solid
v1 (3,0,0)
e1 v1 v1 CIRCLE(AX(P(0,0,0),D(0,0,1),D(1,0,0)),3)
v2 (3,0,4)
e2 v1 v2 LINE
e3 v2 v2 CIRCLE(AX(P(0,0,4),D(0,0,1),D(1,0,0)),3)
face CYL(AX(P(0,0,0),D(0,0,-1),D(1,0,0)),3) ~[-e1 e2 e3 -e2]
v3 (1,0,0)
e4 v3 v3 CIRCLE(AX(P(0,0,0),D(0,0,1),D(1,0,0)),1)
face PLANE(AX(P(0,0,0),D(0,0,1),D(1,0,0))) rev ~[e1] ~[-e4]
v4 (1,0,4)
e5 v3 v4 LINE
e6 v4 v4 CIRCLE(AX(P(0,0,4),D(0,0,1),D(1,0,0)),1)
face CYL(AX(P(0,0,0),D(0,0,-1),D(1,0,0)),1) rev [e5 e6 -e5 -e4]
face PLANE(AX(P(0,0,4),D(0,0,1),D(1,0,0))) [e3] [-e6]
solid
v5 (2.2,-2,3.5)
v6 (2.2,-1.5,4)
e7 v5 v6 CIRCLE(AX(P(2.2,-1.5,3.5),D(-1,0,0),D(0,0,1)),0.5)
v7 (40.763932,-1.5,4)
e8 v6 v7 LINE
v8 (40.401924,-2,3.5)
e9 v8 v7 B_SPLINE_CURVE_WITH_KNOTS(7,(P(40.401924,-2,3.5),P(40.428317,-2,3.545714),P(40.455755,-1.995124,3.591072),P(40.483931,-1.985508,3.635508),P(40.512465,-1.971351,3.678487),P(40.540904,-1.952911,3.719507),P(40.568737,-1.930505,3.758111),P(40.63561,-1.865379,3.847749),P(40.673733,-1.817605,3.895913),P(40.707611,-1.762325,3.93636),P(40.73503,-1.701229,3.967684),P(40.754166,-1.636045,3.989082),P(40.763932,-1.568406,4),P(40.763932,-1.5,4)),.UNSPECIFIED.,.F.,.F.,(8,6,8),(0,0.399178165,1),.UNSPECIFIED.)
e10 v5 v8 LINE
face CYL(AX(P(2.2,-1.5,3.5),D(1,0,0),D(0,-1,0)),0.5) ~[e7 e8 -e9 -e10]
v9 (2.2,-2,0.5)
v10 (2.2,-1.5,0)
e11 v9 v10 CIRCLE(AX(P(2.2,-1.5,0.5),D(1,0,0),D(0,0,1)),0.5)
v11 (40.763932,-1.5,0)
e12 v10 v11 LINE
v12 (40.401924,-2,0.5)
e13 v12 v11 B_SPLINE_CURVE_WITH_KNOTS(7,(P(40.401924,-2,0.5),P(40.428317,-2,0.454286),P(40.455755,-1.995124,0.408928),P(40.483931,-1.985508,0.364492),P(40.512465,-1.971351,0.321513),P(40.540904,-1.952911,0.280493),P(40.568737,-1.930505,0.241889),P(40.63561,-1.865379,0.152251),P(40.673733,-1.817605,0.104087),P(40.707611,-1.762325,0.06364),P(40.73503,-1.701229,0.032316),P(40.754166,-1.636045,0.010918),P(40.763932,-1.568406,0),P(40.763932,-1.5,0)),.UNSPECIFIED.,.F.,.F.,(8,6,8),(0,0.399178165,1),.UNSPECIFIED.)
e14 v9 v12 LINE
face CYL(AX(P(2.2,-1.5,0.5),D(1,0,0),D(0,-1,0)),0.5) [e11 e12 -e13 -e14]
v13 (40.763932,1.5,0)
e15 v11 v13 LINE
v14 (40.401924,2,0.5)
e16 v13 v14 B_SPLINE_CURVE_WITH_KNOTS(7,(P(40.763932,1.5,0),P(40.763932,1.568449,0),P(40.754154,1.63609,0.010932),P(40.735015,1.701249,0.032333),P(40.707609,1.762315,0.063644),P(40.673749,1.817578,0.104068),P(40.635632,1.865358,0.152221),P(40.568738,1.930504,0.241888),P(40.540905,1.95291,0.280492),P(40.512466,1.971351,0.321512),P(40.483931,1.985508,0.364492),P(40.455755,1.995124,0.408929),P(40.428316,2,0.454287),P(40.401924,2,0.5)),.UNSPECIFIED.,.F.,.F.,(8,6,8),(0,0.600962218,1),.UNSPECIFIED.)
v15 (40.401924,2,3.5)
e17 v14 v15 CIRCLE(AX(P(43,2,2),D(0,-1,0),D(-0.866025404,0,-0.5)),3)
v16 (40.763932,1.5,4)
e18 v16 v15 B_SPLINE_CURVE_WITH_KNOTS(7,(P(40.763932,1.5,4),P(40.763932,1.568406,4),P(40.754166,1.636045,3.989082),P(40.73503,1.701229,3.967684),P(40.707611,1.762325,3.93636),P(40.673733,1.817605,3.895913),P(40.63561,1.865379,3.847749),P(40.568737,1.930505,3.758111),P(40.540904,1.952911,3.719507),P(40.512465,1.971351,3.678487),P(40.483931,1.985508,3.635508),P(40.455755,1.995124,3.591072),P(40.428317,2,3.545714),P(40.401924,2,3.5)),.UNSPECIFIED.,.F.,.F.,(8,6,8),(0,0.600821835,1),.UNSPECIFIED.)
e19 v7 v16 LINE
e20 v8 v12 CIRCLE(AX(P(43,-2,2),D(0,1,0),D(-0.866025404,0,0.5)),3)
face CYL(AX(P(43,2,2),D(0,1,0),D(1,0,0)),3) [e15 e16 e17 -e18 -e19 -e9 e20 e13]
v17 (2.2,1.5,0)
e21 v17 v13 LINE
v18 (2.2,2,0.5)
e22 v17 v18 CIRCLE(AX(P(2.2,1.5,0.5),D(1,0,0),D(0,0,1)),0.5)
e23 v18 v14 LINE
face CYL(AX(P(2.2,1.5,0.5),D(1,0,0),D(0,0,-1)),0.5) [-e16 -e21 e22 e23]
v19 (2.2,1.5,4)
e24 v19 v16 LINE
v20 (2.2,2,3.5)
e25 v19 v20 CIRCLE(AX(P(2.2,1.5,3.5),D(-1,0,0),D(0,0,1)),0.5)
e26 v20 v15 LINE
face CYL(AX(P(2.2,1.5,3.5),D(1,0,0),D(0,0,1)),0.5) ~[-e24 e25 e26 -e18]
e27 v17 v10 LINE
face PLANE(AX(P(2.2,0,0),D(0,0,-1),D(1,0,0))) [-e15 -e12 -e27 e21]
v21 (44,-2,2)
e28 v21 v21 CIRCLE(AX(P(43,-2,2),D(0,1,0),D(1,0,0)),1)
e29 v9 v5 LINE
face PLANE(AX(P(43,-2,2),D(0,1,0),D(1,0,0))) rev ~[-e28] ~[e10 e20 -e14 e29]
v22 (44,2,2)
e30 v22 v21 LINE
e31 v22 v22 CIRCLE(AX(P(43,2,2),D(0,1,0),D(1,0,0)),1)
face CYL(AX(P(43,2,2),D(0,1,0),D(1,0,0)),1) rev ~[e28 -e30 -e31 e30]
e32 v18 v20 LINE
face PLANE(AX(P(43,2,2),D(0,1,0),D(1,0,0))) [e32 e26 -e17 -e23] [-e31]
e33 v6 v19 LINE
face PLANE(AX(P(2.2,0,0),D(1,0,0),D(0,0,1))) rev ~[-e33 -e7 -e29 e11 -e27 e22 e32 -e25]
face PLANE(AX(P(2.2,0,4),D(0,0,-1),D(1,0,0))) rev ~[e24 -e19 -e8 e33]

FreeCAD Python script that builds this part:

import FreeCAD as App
import Part
import Sketcher
from FreeCAD import Vector


def edges_at(feature, points):
    """Names of the edges that pass closest to the given points."""
    edges = feature.Shape.Edges
    near = lambda p: min(range(len(edges)), key=lambda i: edges[i].distToShape(Part.Vertex(*p))[0])
    return sorted({f"Edge{near(p) + 1}" for p in points})


def add_polygon(sketch, points):
    """Adds a closed chain of lines whose ends are joined by coincident constraints."""
    first, n = sketch.GeometryCount, len(points)
    for a, b in zip(points, points[1:] + points[:1]):
        sketch.addGeometry(Part.LineSegment(App.Vector(*a, 0), App.Vector(*b, 0)), False)
    for i in range(n):
        sketch.addConstraint(Sketcher.Constraint("Coincident", first + i, 2, first + (i + 1) % n, 1))

doc = App.newDocument("Part")
body = doc.addObject("PartDesign::Body", "Body")

sketch1 = body.newObject("Sketcher::SketchObject", "Sketch")
sketch1.AttachmentSupport = (doc.getObject("XY_Plane"), [""])
sketch1.MapMode = "FlatFace"
sketch1.addGeometry([
    Part.Circle(Vector(0, 0, 0), Vector(0, 0, 1), 3),
    Part.Circle(Vector(0, 0, 0), Vector(0, 0, 1), 1),
], False)
sketch1.addConstraint([
    Sketcher.Constraint("Coincident", 0, 3, -1, 1),
    Sketcher.Constraint("Coincident", 1, 3, -1, 1),
    Sketcher.Constraint("Diameter", 0, 6.0),
    Sketcher.Constraint("Diameter", 1, 2.0),
])
pad1 = body.newObject("PartDesign::Pad", "Pad")
pad1.Profile = sketch1
pad1.Length = 4
body2 = doc.addObject("PartDesign::Body", "Body001")

sketch2 = body2.newObject("Sketcher::SketchObject", "Sketch001")
sketch2.AttachmentSupport = (doc.getObject("XZ_Plane001"), [""])
sketch2.MapMode = "FlatFace"
add_polygon(sketch2, [(2.2, 4), (2.2, 0), (40.8, 0), (40.8, 4)])
sketch2.addConstraint([
    Sketcher.Constraint("Vertical", 0),
    Sketcher.Constraint("Horizontal", 1),
    Sketcher.Constraint("Vertical", 2),
    Sketcher.Constraint("Horizontal", 3),
    Sketcher.Constraint("PointOnObject", 0, 2, -1),
    Sketcher.Constraint("DistanceY", 0, 2, 0, 1, 4.0),
    Sketcher.Constraint("DistanceX", 1, 1, 1, 2, 38.6),
    Sketcher.Constraint("DistanceX", -1, 1, 0, 2, 2.2),
])
pad2 = body2.newObject("PartDesign::Pad", "Pad001")
pad2.Profile = sketch2
pad2.Length = 4
pad2.Midplane = True
doc.recompute()

fillet = body2.newObject("PartDesign::Fillet", "Fillet")
fillet.Base = (pad2, edges_at(pad2, [(21.5, -2, 4)]))
fillet.Radius = 0.5
doc.recompute()

fillet2 = body2.newObject("PartDesign::Fillet", "Fillet001")
fillet2.Base = (fillet, edges_at(fillet, [(21.5, 2, 4)]))
fillet2.Radius = 0.5
doc.recompute()

fillet3 = body2.newObject("PartDesign::Fillet", "Fillet002")
fillet3.Base = (fillet2, edges_at(fillet2, [(21.5, -2, 0)]))
fillet3.Radius = 0.5
doc.recompute()

fillet4 = body2.newObject("PartDesign::Fillet", "Fillet003")
fillet4.Base = (fillet3, edges_at(fillet3, [(21.5, 2, 0)]))
fillet4.Radius = 0.5

sketch3 = body2.newObject("Sketcher::SketchObject", "Sketch002")
sketch3.AttachmentSupport = (doc.getObject("XZ_Plane001"), [""])
sketch3.MapMode = "FlatFace"
sketch3.AttachmentOffset = App.Placement(Vector(0, 0, -2), App.Rotation())
sketch3.addGeometry([
    Part.Circle(Vector(43, 2, 0), Vector(0, 0, 1), 3),
    Part.Circle(Vector(43, 2, 0), Vector(0, 0, 1), 1),
], False)
sketch3.addConstraint([
    Sketcher.Constraint("Coincident", 1, 3, 0, 3),
    Sketcher.Constraint("Diameter", 0, 6.0),
    Sketcher.Constraint("Diameter", 1, 2.0),
    Sketcher.Constraint("DistanceX", -1, 1, 0, 3, 43.0),
    Sketcher.Constraint("DistanceY", -1, 1, 0, 3, 2.0),
])
pad3 = body2.newObject("PartDesign::Pad", "Pad002")
pad3.Profile = sketch3
pad3.Length = 4

doc.recompute()
